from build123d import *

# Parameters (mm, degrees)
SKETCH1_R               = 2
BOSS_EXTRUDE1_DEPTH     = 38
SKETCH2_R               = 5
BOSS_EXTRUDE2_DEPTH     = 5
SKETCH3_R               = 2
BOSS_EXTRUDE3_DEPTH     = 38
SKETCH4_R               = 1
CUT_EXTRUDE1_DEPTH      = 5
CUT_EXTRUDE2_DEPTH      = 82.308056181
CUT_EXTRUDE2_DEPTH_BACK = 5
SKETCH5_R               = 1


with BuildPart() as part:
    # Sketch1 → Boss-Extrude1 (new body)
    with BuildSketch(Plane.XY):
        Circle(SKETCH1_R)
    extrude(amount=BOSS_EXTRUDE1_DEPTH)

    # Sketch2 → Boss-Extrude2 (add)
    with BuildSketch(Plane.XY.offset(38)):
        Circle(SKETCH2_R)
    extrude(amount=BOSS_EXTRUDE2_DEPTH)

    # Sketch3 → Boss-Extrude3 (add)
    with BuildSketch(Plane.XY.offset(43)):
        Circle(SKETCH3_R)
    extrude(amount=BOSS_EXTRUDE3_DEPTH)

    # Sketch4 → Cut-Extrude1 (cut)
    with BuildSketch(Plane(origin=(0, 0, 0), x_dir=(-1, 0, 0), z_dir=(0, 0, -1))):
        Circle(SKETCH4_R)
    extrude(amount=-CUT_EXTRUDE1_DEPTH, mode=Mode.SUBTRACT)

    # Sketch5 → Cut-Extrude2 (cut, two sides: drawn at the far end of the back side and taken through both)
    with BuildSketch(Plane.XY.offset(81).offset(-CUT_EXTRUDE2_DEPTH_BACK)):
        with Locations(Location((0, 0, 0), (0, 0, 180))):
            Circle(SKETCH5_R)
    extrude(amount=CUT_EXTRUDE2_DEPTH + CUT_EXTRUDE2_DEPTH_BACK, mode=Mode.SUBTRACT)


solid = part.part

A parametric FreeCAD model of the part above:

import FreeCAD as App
import Part
import Sketcher
from FreeCAD import Vector

doc = App.newDocument("Part")
params = doc.addObject("Spreadsheet::Sheet", "Params")
for row, (alias, value) in enumerate([
    ("sketch1_diameter", "4 mm"),
    ("pad1_length", "38 mm"),
    ("sketch2_diameter", "10 mm"),
    ("pad2_length", "5 mm"),
    ("sketch3_diameter", "4 mm"),
    ("pad3_length", "38 mm"),
    ("sketch4_diameter", "2 mm"),
    ("pocket1_length", "5 mm"),
    ("sketch5_diameter", "2 mm"),
    ("pocket2_length", "82.308056 mm"),
    ("pocket2_length2", "5 mm"),
], start=1):
    params.set(f"A{row}", alias)
    params.set(f"B{row}", "=" + value)
    params.setAlias(f"B{row}", alias)

body = doc.addObject("PartDesign::Body", "Body")

sketch1 = body.newObject("Sketcher::SketchObject", "Sketch")
sketch1.AttachmentSupport = (doc.getObject("XY_Plane"), [""])
sketch1.MapMode = "FlatFace"
sketch1.addGeometry(Part.Circle(Vector(0, 0, 0), Vector(0, 0, 1), 2), False)
sketch1.addConstraint(Sketcher.Constraint("Coincident", 0, 3, -1, 1))
sketch1.addConstraint(Sketcher.Constraint("Diameter", 0, 4.0))
sketch1.setExpression("Constraints[1]", "Params.sketch1_diameter")
pad1 = body.newObject("PartDesign::Pad", "Pad")
pad1.Profile = sketch1
pad1.setExpression("Length", "Params.pad1_length")

sketch2 = body.newObject("Sketcher::SketchObject", "Sketch001")
sketch2.AttachmentSupport = (doc.getObject("XY_Plane"), [""])
sketch2.MapMode = "FlatFace"
sketch2.AttachmentOffset = App.Placement(Vector(0, 0, 38), App.Rotation())
sketch2.addGeometry(Part.Circle(Vector(0, 0, 0), Vector(0, 0, 1), 5), False)
sketch2.addConstraint(Sketcher.Constraint("Coincident", 0, 3, -1, 1))
sketch2.addConstraint(Sketcher.Constraint("Diameter", 0, 10.0))
sketch2.setExpression("Constraints[1]", "Params.sketch2_diameter")
pad2 = body.newObject("PartDesign::Pad", "Pad001")
pad2.Profile = sketch2
pad2.setExpression("Length", "Params.pad2_length")

sketch3 = body.newObject("Sketcher::SketchObject", "Sketch002")
sketch3.AttachmentSupport = (doc.getObject("XY_Plane"), [""])
sketch3.MapMode = "FlatFace"
sketch3.AttachmentOffset = App.Placement(Vector(0, 0, 43), App.Rotation())
sketch3.addGeometry(Part.Circle(Vector(0, 0, 0), Vector(0, 0, 1), 2), False)
sketch3.addConstraint(Sketcher.Constraint("Coincident", 0, 3, -1, 1))
sketch3.addConstraint(Sketcher.Constraint("Diameter", 0, 4.0))
sketch3.setExpression("Constraints[1]", "Params.sketch3_diameter")
pad3 = body.newObject("PartDesign::Pad", "Pad002")
pad3.Profile = sketch3
pad3.setExpression("Length", "Params.pad3_length")

sketch4 = body.newObject("Sketcher::SketchObject", "Sketch003")
sketch4.AttachmentSupport = (doc.getObject("XY_Plane"), [""])
sketch4.MapMode = "FlatFace"
sketch4.addGeometry(Part.Circle(Vector(0, 0, 0), Vector(0, 0, 1), 1), False)
sketch4.addConstraint(Sketcher.Constraint("Coincident", 0, 3, -1, 1))
sketch4.addConstraint(Sketcher.Constraint("Diameter", 0, 2.0))
sketch4.setExpression("Constraints[1]", "Params.sketch4_diameter")
pocket1 = body.newObject("PartDesign::Pocket", "Pocket")
pocket1.Profile = sketch4
pocket1.setExpression("Length", "Params.pocket1_length")
pocket1.Reversed = True

sketch5 = body.newObject("Sketcher::SketchObject", "Sketch004")
sketch5.AttachmentSupport = (doc.getObject("XY_Plane"), [""])
sketch5.MapMode = "FlatFace"
sketch5.AttachmentOffset = App.Placement(Vector(0, 0, 81), App.Rotation())
sketch5.addGeometry(Part.Circle(Vector(0, 0, 0), Vector(0, 0, 1), 1), False)
sketch5.addConstraint(Sketcher.Constraint("Coincident", 0, 3, -1, 1))
sketch5.addConstraint(Sketcher.Constraint("Diameter", 0, 2.0))
sketch5.setExpression("Constraints[1]", "Params.sketch5_diameter")
pocket2 = body.newObject("PartDesign::Pocket", "Pocket001")
pocket2.Profile = sketch5
pocket2.Type = "TwoLengths"
pocket2.setExpression("Length", "Params.pocket2_length")
pocket2.setExpression("Length2", "Params.pocket2_length2")
pocket2.Reversed = True

doc.recompute()
